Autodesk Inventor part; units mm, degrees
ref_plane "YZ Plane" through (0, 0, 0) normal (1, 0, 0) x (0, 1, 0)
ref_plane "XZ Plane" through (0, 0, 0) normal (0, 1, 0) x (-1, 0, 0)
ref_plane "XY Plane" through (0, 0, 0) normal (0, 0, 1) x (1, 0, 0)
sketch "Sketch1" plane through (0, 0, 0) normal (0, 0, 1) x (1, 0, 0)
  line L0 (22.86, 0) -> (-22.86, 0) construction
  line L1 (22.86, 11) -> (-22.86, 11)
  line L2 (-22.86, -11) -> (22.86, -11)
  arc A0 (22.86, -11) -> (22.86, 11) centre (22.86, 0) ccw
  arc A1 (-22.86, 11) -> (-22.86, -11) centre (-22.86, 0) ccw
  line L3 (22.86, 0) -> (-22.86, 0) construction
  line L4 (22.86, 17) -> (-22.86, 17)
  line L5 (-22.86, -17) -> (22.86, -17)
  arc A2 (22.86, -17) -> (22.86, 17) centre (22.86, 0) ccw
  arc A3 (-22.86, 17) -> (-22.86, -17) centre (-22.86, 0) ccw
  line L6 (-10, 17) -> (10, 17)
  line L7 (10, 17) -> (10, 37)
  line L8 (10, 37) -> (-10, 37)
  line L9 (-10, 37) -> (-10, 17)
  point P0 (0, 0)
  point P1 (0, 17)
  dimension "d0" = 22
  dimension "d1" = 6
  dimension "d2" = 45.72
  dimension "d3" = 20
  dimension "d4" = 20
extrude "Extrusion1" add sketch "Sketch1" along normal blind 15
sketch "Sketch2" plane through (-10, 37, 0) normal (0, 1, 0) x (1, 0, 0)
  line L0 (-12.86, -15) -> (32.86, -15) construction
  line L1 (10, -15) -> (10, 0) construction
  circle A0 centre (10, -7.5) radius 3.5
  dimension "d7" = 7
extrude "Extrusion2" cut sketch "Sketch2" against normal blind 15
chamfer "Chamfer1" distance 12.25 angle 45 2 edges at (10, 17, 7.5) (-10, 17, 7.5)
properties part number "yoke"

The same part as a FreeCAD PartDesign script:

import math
import FreeCAD as App
import Part
import Sketcher

V = App.Vector
Q = App.Units.Quantity


def edges_at(feature, points):
    """Names of the edges that pass closest to the given points."""
    edges = feature.Shape.Edges
    near = lambda p: min(range(len(edges)), key=lambda i: edges[i].distToShape(Part.Vertex(*p))[0])
    return sorted({f"Edge{near(p) + 1}" for p in points})

doc = App.newDocument("Part")
params = doc.addObject("Spreadsheet::Sheet", "Params")
for row, (alias, value) in enumerate([
    ("sketch1_radius", "11 mm"),
    ("sketch1_width", "20 mm"),
    ("sketch1_radius2", "17 mm"),
    ("sketch1_width2", "45.72 mm"),
    ("pad1_length", "15 mm"),
    ("sketch2_diameter", "7 mm"),
    ("pocket1_length", "15 mm"),
    ("chamfer_size", "12.25 mm"),
], start=1):
    params.set(f"A{row}", alias)
    params.set(f"B{row}", "=" + value)
    params.setAlias(f"B{row}", alias)

body = doc.addObject("PartDesign::Body", "Body")

# Sketch on XY plane
sketch1 = body.newObject("Sketcher::SketchObject", "Sketch")
sketch1.AttachmentSupport = (doc.getObject("XY_Plane"), [""])
sketch1.MapMode = "FlatFace"
sketch1.addGeometry([
    Part.ArcOfCircle(Part.Circle(V(23, 0, 0), V(0, 0, 1), 17), math.radians(-90), math.radians(90)),  # 0
    Part.LineSegment(V(23, 17, 0), V(10, 17, 0)),  # 1
    Part.LineSegment(V(10, 17, 0), V(10, 37, 0)),  # 2
    Part.LineSegment(V(10, 37, 0), V(-10, 37, 0)),  # 3
    Part.LineSegment(V(-10, 37, 0), V(-10, 17, 0)),  # 4
    Part.LineSegment(V(-10, 17, 0), V(-23, 17, 0)),  # 5
    Part.ArcOfCircle(Part.Circle(V(-23, 0, 0), V(0, 0, 1), 17), math.radians(90), math.radians(270)),  # 6
    Part.LineSegment(V(-23, -17, 0), V(23, -17, 0)),  # 7
    Part.LineSegment(V(-23, 11, 0), V(23, 11, 0)),  # 8
    Part.ArcOfCircle(Part.Circle(V(23, 0, 0), V(0, 0, 1), 11), math.radians(-90), math.radians(90)),  # 9
    Part.LineSegment(V(23, -11, 0), V(-23, -11, 0)),  # 10
    Part.ArcOfCircle(Part.Circle(V(-23, 0, 0), V(0, 0, 1), 11), math.radians(90), math.radians(270)),  # 11
], False)
sketch1.addConstraint([
    Sketcher.Constraint("Tangent", 0, 2, 1, 1),
    Sketcher.Constraint("Coincident", 1, 2, 2, 1),
    Sketcher.Constraint("Coincident", 2, 2, 3, 1),
    Sketcher.Constraint("Coincident", 3, 2, 4, 1),
    Sketcher.Constraint("Coincident", 4, 2, 5, 1),
    Sketcher.Constraint("Tangent", 5, 2, 6, 1),
    Sketcher.Constraint("Tangent", 6, 2, 7, 1),
    Sketcher.Constraint("Tangent", 7, 2, 0, 1),
    Sketcher.Constraint("Tangent", 8, 2, 9, 2),
    Sketcher.Constraint("Tangent", 9, 1, 10, 1),
    Sketcher.Constraint("Tangent", 10, 2, 11, 2),
    Sketcher.Constraint("Tangent", 11, 1, 8, 1),
    Sketcher.Constraint("Horizontal", 1),
    Sketcher.Constraint("Vertical", 2),
    Sketcher.Constraint("Horizontal", 3),
    Sketcher.Constraint("Vertical", 4),
    Sketcher.Constraint("Horizontal", 5),
    Sketcher.Constraint("Horizontal", 7),
    Sketcher.Constraint("Horizontal", 8),
    Sketcher.Constraint("Horizontal", 10),
    Sketcher.Constraint("Coincident", 9, 3, 0, 3),
    Sketcher.Constraint("Coincident", 11, 3, 6, 3),
    Sketcher.Constraint("Symmetric", 0, 3, 6, 3, -1, 1),
    Sketcher.Constraint("Equal", 1, 5),
    Sketcher.Constraint("Equal", 3, 2),
    Sketcher.Constraint("Radius", 9, Q("11 mm")),
    Sketcher.Constraint("DistanceX", 3, 2, 3, 1, Q("20 mm")),
    Sketcher.Constraint("Radius", 0, Q("17 mm")),
    Sketcher.Constraint("DistanceX", 7, 1, 7, 2, Q("45.72 mm")),
])
sketch1.setExpression("Constraints[25]", "Params.sketch1_radius")
sketch1.setExpression("Constraints[26]", "Params.sketch1_width")
sketch1.setExpression("Constraints[27]", "Params.sketch1_radius2")
sketch1.setExpression("Constraints[28]", "Params.sketch1_width2")
pad1 = body.newObject("PartDesign::Pad", "Pad")
pad1.Profile = sketch1
pad1.setExpression("Length", "Params.pad1_length")

# Sketch on XZ plane
sketch2 = body.newObject("Sketcher::SketchObject", "Sketch001")
sketch2.AttachmentSupport = (doc.getObject("XZ_Plane"), [""])
sketch2.MapMode = "FlatFace"
sketch2.AttachmentOffset = App.Placement(V(0, 0, -37), App.Rotation())
sketch2.addGeometry(Part.Circle(V(0, 7.5, 0), V(0, 0, 1), 3.5), False)
sketch2.addConstraint([
    Sketcher.Constraint("PointOnObject", 0, 3, -2),
    Sketcher.Constraint("Diameter", 0, Q("7 mm")),
    Sketcher.Constraint("DistanceY", -1, 1, 0, 3, Q("7.5 mm")),
])
sketch2.setExpression("Constraints[1]", "Params.sketch2_diameter")
pocket1 = body.newObject("PartDesign::Pocket", "Pocket")
pocket1.Profile = sketch2
pocket1.setExpression("Length", "Params.pocket1_length")
pocket1.Reversed = True
doc.recompute()

chamfer = body.newObject("PartDesign::Chamfer", "Chamfer")
chamfer.Base = (pocket1, edges_at(pocket1, [(10, 17, 7.5), (-10, 17, 7.5)]))
chamfer.setExpression("Size", "Params.chamfer_size")

doc.recompute()
